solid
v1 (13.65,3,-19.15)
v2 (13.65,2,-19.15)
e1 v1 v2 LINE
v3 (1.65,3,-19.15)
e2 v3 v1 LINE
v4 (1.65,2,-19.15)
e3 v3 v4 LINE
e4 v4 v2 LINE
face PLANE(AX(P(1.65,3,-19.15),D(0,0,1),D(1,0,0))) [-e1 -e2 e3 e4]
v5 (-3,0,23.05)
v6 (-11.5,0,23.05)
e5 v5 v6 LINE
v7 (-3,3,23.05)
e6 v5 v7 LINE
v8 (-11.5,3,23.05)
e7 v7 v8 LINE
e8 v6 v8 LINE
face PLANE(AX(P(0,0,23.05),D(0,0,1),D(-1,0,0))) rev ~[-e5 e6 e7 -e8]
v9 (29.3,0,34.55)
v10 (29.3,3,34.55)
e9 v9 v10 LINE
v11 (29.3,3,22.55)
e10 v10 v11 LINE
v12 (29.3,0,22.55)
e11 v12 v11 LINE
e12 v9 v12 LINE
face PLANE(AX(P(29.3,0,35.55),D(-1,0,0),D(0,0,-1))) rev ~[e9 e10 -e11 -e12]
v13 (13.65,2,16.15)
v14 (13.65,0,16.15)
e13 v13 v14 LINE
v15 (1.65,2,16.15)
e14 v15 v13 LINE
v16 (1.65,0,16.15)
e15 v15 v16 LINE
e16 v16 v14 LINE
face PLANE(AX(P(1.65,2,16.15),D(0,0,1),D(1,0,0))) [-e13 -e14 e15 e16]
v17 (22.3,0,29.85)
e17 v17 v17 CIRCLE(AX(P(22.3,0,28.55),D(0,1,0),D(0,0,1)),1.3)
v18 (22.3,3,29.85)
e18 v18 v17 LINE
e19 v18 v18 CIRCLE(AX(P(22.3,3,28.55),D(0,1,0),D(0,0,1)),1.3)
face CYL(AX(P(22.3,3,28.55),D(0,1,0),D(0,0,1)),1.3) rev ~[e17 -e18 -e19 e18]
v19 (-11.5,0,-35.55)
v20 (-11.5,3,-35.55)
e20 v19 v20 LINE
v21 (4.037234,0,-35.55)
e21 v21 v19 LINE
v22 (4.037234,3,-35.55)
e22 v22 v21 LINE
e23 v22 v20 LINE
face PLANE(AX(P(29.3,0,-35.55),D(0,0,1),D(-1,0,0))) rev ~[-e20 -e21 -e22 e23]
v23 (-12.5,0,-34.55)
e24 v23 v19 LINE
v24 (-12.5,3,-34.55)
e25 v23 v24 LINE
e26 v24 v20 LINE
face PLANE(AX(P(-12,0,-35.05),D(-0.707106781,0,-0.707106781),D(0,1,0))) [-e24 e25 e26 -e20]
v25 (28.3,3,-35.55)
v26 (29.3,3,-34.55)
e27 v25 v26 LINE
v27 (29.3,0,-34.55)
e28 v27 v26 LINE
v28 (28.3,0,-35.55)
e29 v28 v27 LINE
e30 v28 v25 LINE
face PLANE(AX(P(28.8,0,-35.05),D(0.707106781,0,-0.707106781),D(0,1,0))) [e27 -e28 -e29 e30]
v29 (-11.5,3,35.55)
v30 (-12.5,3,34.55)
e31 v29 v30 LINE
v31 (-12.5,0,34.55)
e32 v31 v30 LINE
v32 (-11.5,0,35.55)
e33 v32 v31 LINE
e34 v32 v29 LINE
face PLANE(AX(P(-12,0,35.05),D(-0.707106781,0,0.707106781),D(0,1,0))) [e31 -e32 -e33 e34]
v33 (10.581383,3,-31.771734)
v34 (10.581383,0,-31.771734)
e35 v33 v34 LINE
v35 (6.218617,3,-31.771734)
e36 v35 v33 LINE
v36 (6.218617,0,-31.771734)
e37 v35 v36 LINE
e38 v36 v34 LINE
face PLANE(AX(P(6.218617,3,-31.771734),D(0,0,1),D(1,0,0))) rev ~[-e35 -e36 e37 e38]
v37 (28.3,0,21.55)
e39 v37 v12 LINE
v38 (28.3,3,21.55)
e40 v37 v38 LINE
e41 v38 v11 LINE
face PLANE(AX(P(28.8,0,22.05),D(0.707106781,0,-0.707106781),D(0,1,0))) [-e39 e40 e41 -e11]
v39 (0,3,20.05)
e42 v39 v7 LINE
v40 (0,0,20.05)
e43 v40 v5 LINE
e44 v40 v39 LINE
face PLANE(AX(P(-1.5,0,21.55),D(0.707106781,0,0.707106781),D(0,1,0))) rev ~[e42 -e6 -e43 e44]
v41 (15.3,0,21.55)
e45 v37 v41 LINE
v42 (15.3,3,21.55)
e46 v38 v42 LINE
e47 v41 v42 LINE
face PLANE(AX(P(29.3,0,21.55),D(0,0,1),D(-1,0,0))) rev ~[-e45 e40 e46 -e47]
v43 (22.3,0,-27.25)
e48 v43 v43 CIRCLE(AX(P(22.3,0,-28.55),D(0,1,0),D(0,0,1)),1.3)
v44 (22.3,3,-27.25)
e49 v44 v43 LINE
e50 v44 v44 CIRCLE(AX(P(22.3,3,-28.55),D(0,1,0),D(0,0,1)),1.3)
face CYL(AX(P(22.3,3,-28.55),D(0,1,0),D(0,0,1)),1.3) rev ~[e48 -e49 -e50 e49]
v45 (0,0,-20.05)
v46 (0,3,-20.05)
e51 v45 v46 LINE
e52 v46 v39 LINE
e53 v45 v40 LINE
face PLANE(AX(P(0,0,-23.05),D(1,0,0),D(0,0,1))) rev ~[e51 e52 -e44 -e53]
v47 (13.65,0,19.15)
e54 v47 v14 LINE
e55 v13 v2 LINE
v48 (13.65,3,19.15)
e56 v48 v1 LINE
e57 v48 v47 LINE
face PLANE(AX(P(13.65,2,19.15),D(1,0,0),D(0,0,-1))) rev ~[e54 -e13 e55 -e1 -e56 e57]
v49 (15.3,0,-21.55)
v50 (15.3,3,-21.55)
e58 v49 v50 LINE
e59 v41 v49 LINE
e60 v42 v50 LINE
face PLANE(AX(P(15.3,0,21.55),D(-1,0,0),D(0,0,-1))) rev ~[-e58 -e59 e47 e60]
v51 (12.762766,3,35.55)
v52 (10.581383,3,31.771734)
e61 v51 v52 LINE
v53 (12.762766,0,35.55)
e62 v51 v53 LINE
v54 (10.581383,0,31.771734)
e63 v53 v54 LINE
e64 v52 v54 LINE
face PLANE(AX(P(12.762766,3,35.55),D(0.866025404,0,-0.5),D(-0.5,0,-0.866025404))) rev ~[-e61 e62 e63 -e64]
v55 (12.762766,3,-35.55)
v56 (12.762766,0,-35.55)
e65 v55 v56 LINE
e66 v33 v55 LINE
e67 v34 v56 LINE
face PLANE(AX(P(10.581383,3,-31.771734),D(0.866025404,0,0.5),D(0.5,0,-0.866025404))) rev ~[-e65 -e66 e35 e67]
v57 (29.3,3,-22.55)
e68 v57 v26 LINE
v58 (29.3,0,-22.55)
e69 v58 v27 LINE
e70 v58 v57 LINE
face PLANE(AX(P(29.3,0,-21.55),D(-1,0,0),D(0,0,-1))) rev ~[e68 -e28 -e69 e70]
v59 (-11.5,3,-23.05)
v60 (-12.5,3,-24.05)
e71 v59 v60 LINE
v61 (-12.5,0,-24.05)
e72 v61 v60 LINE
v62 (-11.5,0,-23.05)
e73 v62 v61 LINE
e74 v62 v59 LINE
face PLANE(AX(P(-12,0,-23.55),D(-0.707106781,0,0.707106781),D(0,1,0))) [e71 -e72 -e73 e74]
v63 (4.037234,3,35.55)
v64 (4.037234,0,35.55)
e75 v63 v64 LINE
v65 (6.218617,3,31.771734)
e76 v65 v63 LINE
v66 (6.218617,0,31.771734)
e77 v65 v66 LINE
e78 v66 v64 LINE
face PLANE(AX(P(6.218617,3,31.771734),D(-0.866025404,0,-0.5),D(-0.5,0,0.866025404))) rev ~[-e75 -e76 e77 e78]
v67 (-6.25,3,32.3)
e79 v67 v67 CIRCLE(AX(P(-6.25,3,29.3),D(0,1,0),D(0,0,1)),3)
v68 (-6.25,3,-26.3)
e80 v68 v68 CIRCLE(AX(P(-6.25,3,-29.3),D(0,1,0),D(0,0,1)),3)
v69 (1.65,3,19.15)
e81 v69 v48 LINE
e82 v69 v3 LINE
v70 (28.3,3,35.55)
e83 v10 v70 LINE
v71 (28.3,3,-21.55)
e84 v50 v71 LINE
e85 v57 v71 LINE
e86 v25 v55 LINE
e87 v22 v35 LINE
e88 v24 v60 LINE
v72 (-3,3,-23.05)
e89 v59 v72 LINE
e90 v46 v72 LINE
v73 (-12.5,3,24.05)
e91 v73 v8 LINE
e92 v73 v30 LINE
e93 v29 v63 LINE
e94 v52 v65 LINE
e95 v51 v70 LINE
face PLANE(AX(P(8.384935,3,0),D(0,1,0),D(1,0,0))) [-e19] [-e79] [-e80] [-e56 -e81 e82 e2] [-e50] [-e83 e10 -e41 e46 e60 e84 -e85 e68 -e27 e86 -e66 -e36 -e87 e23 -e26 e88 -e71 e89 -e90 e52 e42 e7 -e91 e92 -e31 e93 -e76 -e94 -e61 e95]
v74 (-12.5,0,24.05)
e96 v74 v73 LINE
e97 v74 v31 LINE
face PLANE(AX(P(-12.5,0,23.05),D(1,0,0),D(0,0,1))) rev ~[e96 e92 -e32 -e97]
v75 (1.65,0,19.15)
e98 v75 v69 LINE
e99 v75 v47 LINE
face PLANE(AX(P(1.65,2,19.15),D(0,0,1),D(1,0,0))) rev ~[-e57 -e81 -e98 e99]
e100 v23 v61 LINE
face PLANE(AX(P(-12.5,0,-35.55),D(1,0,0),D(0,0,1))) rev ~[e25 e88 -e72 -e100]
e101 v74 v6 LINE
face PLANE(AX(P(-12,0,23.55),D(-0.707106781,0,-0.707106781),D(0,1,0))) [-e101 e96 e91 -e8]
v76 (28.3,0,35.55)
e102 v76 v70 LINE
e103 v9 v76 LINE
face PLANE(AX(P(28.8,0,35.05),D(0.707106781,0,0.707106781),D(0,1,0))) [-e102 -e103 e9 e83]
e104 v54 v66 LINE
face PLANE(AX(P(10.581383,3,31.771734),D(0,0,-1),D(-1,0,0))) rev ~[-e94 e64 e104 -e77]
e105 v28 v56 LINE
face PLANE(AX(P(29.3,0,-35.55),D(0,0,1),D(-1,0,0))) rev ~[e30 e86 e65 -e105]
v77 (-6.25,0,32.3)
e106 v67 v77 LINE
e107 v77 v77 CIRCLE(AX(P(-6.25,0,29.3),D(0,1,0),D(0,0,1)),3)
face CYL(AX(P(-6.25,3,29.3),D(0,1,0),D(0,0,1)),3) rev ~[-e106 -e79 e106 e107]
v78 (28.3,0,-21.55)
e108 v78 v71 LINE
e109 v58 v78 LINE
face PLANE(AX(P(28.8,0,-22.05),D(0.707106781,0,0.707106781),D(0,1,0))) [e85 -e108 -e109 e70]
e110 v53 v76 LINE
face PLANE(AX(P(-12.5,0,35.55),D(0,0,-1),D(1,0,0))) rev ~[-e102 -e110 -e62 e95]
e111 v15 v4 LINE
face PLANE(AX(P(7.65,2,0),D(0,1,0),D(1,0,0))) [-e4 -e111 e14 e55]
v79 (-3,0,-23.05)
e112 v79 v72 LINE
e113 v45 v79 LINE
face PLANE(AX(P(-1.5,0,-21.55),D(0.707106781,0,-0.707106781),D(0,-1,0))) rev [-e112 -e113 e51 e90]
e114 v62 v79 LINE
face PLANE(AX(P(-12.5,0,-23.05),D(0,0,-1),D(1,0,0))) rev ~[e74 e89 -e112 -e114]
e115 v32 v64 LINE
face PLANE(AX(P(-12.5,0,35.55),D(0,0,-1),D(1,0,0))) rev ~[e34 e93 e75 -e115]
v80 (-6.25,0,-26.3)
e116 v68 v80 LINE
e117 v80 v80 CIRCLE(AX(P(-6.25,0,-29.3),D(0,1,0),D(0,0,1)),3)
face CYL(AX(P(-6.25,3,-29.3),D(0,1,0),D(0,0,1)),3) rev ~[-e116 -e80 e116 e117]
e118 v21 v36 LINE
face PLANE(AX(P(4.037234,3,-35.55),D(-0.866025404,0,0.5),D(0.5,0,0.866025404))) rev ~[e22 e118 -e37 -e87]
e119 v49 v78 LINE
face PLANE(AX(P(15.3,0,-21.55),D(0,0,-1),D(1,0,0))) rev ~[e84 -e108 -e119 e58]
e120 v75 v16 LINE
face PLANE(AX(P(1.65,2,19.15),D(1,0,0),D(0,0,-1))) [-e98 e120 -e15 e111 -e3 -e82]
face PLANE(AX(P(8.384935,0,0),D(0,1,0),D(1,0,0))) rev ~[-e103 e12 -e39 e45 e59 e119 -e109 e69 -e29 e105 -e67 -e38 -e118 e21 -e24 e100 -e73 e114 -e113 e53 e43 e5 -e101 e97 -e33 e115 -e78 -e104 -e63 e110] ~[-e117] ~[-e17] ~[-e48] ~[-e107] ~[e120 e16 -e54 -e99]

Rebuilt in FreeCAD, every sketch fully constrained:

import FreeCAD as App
import Part
import Sketcher
from FreeCAD import Vector
Q = App.Units.Quantity


def edges_at(feature, points):
    """Names of the edges that pass closest to the given points."""
    edges = feature.Shape.Edges
    near = lambda p: min(range(len(edges)), key=lambda i: edges[i].distToShape(Part.Vertex(*p))[0])
    return sorted({f"Edge{near(p) + 1}" for p in points})


def add_polygon(sketch, points):
    """Adds a closed chain of lines whose ends are joined by coincident constraints."""
    first, n = sketch.GeometryCount, len(points)
    for a, b in zip(points, points[1:] + points[:1]):
        sketch.addGeometry(Part.LineSegment(App.Vector(*a, 0), App.Vector(*b, 0)), False)
    for i in range(n):
        sketch.addConstraint(Sketcher.Constraint("Coincident", first + i, 2, first + (i + 1) % n, 1))

doc = App.newDocument("Part")
body = doc.addObject("PartDesign::Body", "Body")

sketch1 = doc.addObject("Sketcher::SketchObject", "Sketch")
body.addObject(sketch1)
sketch1.AttachmentSupport = (doc.XZ_Plane, [""])
sketch1.MapMode = "FlatFace"
add_polygon(sketch1, [(0, -23), (0, 23), (-12, 23), (-12, 36), (29, 36), (29, 22), (15, 22), (15, -22), (29, -22), (29, -36), (-12, -36), (-12, -23)])
sketch1.addConstraint([
    Sketcher.Constraint("Vertical", 0),
    Sketcher.Constraint("Horizontal", 1),
    Sketcher.Constraint("Vertical", 2),
    Sketcher.Constraint("Horizontal", 3),
    Sketcher.Constraint("Vertical", 4),
    Sketcher.Constraint("Horizontal", 5),
    Sketcher.Constraint("Vertical", 6),
    Sketcher.Constraint("Horizontal", 7),
    Sketcher.Constraint("Vertical", 8),
    Sketcher.Constraint("Horizontal", 9),
    Sketcher.Constraint("Vertical", 10),
    Sketcher.Constraint("Horizontal", 11),
    Sketcher.Constraint("Symmetric", 0, 2, 11, 2, -1, 1),
    Sketcher.Constraint("Symmetric", 4, 2, 7, 2, -1),
    Sketcher.Constraint("Symmetric", 2, 2, 9, 2, -1),
    Sketcher.Constraint("Equal", 11, 2),
    Sketcher.Constraint("Equal", 7, 4),
    Sketcher.Constraint("DistanceX", 5, 2, 5, 1, Q("14 mm")),
    Sketcher.Constraint("DistanceX", 1, 2, 1, 1, Q("12.5 mm")),
    Sketcher.Constraint("DistanceX", 3, 1, 3, 2, Q("41.8 mm")),
    Sketcher.Constraint("DistanceY", 0, 1, 0, 2, Q("46.1 mm")),
])
pad1 = doc.addObject("PartDesign::Pad", "Pad")
body.addObject(pad1)
pad1.Profile = sketch1
pad1.Length = 3
pad1.Reversed = True

sketch2 = doc.addObject("Sketcher::SketchObject", "Sketch001")
body.addObject(sketch2)
sketch2.AttachmentSupport = (doc.XZ_Plane, [""])
sketch2.MapMode = "FlatFace"
sketch2.AttachmentOffset = App.Placement(Vector(0, 0, -3), App.Rotation())
sketch2.addGeometry([
    Part.Circle(Vector(-6.2, -29.3, 0), Vector(0, 0, 1), 3),
    Part.Circle(Vector(-6.2, 29.3, 0), Vector(0, 0, 1), 3),
    Part.Circle(Vector(22.3, 28.6, 0), Vector(0, 0, 1), 1.3),
    Part.Circle(Vector(22.3, -28.6, 0), Vector(0, 0, 1), 1.3),
], False)
sketch2.addConstraint([
    Sketcher.Constraint("Equal", 0, 1),
    Sketcher.Constraint("Equal", 2, 3),
    Sketcher.Constraint("Symmetric", 0, 3, 1, 3, -1),
    Sketcher.Constraint("Symmetric", 2, 3, 3, 3, -1),
    Sketcher.Constraint("Diameter", 0, Q("6 mm")),
    Sketcher.Constraint("Diameter", 2, Q("2.6 mm")),
    Sketcher.Constraint("DistanceY", 0, 3, -1, 1, Q("29.3 mm")),
    Sketcher.Constraint("DistanceX", -1, 1, 2, 3, Q("22.3 mm")),
    Sketcher.Constraint("DistanceY", 3, 3, 2, 3, Q("57.1 mm")),
    Sketcher.Constraint("DistanceX", 0, 3, -1, 1, Q("6.25 mm")),
])
pocket1 = doc.addObject("PartDesign::Pocket", "Pocket")
body.addObject(pocket1)
pocket1.Profile = sketch2
pocket1.Type = "ThroughAll"
pocket1.Reversed = True

sketch3 = doc.addObject("Sketcher::SketchObject", "Sketch002")
body.addObject(sketch3)
sketch3.AttachmentSupport = (doc.XZ_Plane, [""])
sketch3.MapMode = "FlatFace"
sketch3.AttachmentOffset = App.Placement(Vector(0, 0, -3), App.Rotation())
add_polygon(sketch3, [(2, -19), (2, 19), (14, 19), (14, -19)])
sketch3.addConstraint([
    Sketcher.Constraint("Vertical", 0),
    Sketcher.Constraint("Horizontal", 1),
    Sketcher.Constraint("Vertical", 2),
    Sketcher.Constraint("Horizontal", 3),
    Sketcher.Constraint("DistanceX", 1, 1, 1, 2, Q("12 mm")),
    Sketcher.Constraint("DistanceY", 0, 1, 0, 2, Q("38.3 mm")),
    Sketcher.Constraint("DistanceX", -1, 1, 0, 2, Q("1.65 mm")),
    Sketcher.Constraint("DistanceY", -1, 1, 0, 2, Q("19.15 mm")),
])
pocket2 = doc.addObject("PartDesign::Pocket", "Pocket001")
body.addObject(pocket2)
pocket2.Profile = sketch3
pocket2.Length = 1
pocket2.Reversed = True

sketch4 = doc.addObject("Sketcher::SketchObject", "Sketch003")
body.addObject(sketch4)
sketch4.AttachmentSupport = (doc.XZ_Plane, [""])
sketch4.MapMode = "FlatFace"
sketch4.AttachmentOffset = App.Placement(Vector(0, 0, -2), App.Rotation())
add_polygon(sketch4, [(1.6, 16.1), (1.6, 19.1), (13.7, 19.1), (13.7, 16.1)])
sketch4.addConstraint([
    Sketcher.Constraint("Vertical", 0),
    Sketcher.Constraint("Horizontal", 1),
    Sketcher.Constraint("Vertical", 2),
    Sketcher.Constraint("Horizontal", 3),
    Sketcher.Constraint("DistanceX", 1, 1, 1, 2, Q("12 mm")),
    Sketcher.Constraint("DistanceY", 0, 1, 0, 2, Q("3 mm")),
    Sketcher.Constraint("DistanceX", -1, 1, 0, 2, Q("1.65 mm")),
    Sketcher.Constraint("DistanceY", -1, 1, 0, 2, Q("19.15 mm")),
])
pocket3 = doc.addObject("PartDesign::Pocket", "Pocket002")
body.addObject(pocket3)
pocket3.Profile = sketch4
pocket3.Type = "ThroughAll"
pocket3.Reversed = True
doc.recompute()

chamfer = doc.addObject("PartDesign::Chamfer", "Chamfer")
body.addObject(chamfer)
chamfer.Base = (pocket3, edges_at(pocket3, [(0, 1.5, 23.05), (0, 1.5, -23.05)]))
chamfer.Size = 3

sketch5 = doc.addObject("Sketcher::SketchObject", "Sketch004")
body.addObject(sketch5)
sketch5.AttachmentSupport = (doc.XZ_Plane, [""])
sketch5.MapMode = "FlatFace"
sketch5.AttachmentOffset = App.Placement(Vector(0, 0, -3), App.Rotation())
add_polygon(sketch5, [(4, 35.5), (6.2, 39.3), (10.6, 39.3), (12.8, 35.5), (10.6, 31.8), (6.2, 31.8)])
add_polygon(sketch5, [(4, -35.5), (6.2, -31.8), (10.6, -31.8), (12.8, -35.5), (10.6, -39.3), (6.2, -39.3)])
sketch5.addConstraint([
    Sketcher.Constraint("Horizontal", 1),
    Sketcher.Constraint("Horizontal", 4),
    Sketcher.Constraint("Horizontal", 7),
    Sketcher.Constraint("Horizontal", 10),
    Sketcher.Constraint("Symmetric", 4, 2, 6, 2, -1),
    Sketcher.Constraint("Symmetric", 2, 2, 8, 2, -1),
    Sketcher.Constraint("Symmetric", 1, 2, 9, 2, -1),
    Sketcher.Constraint("Symmetric", 5, 2, 11, 2, -1),
    Sketcher.Constraint("Parallel", 0, 3),
    Sketcher.Constraint("Parallel", 2, 5),
    Sketcher.Constraint("Parallel", 3, 6),
    Sketcher.Constraint("Parallel", 5, 8),
    Sketcher.Constraint("Parallel", 8, 11),
    Sketcher.Constraint("Horizontal", 2, 2, 5, 2),
    Sketcher.Constraint("Vertical", 1, 2, 3, 2),
    Sketcher.Constraint("Angle", 0, Q("60 deg")),
    Sketcher.Constraint("DistanceY", 6, 2, 0, 2, Q("71.1 mm")),
    Sketcher.Constraint("DistanceX", 1, 1, 1, 2, Q("4.362766 mm")),
    Sketcher.Constraint("DistanceX", 0, 2, 2, 2, Q("6.54415 mm")),
    Sketcher.Constraint("DistanceX", -1, 1, 0, 2, Q("6.218617 mm")),
])
pocket4 = doc.addObject("PartDesign::Pocket", "Pocket003")
body.addObject(pocket4)
pocket4.Profile = sketch5
pocket4.Type = "ThroughAll"
pocket4.Reversed = True
doc.recompute()

chamfer2 = doc.addObject("PartDesign::Chamfer", "Chamfer001")
body.addObject(chamfer2)
chamfer2.Base = (pocket4, edges_at(pocket4, [
    (-12.5, 1.5, -23.05),
    (-12.5, 1.5, -35.55),
    (29.3, 1.5, -35.55),
    (29.3, 1.5, -21.55),
    (29.3, 1.5, 21.55),
    (29.3, 1.5, 35.55),
    (-12.5, 1.5, 35.55),
    (-12.5, 1.5, 23.05),
]))
chamfer2.Size = 1

doc.recompute()
